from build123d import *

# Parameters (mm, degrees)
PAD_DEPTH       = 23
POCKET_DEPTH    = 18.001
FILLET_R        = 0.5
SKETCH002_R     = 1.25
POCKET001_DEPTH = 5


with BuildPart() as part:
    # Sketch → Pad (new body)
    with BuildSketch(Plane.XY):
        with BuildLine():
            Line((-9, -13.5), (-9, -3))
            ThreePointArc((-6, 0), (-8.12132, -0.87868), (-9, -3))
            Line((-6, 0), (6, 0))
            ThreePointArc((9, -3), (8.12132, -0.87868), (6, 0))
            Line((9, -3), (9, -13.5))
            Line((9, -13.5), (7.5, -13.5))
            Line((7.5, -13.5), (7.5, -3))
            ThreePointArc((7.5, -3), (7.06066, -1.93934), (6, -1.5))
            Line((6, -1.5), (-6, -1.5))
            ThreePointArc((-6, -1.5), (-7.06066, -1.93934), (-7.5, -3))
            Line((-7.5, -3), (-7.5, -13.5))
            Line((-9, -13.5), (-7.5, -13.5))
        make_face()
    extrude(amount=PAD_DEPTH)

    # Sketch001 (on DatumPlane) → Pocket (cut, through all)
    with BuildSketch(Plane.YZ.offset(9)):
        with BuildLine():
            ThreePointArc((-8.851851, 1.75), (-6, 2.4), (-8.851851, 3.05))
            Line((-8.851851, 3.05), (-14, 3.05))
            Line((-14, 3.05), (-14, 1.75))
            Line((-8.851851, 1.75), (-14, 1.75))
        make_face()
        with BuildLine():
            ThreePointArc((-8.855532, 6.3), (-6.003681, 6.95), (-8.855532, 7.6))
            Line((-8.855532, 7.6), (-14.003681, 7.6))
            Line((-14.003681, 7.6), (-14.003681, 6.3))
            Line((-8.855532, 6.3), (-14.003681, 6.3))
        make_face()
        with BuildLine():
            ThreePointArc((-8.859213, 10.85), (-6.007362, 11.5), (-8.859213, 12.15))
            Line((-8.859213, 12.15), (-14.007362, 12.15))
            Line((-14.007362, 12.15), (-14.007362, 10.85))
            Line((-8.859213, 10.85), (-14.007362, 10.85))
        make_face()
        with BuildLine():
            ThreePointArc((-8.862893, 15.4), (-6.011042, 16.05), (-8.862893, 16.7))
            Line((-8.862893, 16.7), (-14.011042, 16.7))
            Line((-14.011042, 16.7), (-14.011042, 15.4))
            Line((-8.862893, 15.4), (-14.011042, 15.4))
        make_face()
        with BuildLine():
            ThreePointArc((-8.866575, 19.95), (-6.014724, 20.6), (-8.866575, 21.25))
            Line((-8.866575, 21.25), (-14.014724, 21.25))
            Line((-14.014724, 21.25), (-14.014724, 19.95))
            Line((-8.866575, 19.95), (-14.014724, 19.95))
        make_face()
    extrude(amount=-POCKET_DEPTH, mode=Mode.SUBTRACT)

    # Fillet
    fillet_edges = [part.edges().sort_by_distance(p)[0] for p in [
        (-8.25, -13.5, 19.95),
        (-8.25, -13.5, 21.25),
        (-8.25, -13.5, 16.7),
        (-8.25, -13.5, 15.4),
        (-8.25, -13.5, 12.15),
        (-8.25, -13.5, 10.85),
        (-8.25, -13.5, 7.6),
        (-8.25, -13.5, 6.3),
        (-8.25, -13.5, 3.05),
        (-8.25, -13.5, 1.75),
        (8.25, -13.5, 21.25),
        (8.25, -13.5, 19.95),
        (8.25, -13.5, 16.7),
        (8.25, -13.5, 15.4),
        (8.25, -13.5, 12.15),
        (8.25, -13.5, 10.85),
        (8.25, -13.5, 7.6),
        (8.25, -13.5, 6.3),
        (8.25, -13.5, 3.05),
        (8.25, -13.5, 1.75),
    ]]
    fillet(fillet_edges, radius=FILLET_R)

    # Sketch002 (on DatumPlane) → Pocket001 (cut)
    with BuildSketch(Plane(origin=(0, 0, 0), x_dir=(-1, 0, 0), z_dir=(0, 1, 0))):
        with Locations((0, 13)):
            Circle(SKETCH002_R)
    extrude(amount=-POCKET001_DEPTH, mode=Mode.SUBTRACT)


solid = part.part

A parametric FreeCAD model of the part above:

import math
import FreeCAD as App
import Part
import Sketcher

V = App.Vector
Q = App.Units.Quantity


def edges_at(feature, points):
    """Names of the edges that pass closest to the given points."""
    edges = feature.Shape.Edges
    near = lambda p: min(range(len(edges)), key=lambda i: edges[i].distToShape(Part.Vertex(*p))[0])
    return sorted({f"Edge{near(p) + 1}" for p in points})

doc = App.newDocument("Part")
body = doc.addObject("PartDesign::Body", "Body")

# Sketch on XY plane
sketch1 = body.newObject("Sketcher::SketchObject", "Sketch")
sketch1.AttachmentSupport = (doc.getObject("XY_Plane"), [""])
sketch1.MapMode = "FlatFace"
sketch1.addGeometry(Part.LineSegment(V(-9, -3, 0), V(-9, -13.5, 0)), False)
sketch1.addGeometry(Part.LineSegment(V(-9, -13.5, 0), V(-7.5, -13.5, 0)), False)
sketch1.addGeometry(Part.LineSegment(V(-7.5, -13.5, 0), V(-7.5, -3, 0)), False)
sketch1.addGeometry(Part.ArcOfCircle(Part.Circle(V(-6, -3, 0), V(0, 0, 1), 1.5), math.radians(90), math.radians(180)), False)
sketch1.addGeometry(Part.LineSegment(V(-6, -1.5, 0), V(6, -1.5, 0)), False)
sketch1.addGeometry(Part.ArcOfCircle(Part.Circle(V(6, -3, 0), V(0, 0, 1), 1.5), math.radians(0), math.radians(90)), False)
sketch1.addGeometry(Part.LineSegment(V(7.5, -3, 0), V(7.5, -13.5, 0)), False)
sketch1.addGeometry(Part.LineSegment(V(7.5, -13.5, 0), V(9, -13.5, 0)), False)
sketch1.addGeometry(Part.LineSegment(V(9, -13.5, 0), V(9, -3, 0)), False)
sketch1.addGeometry(Part.ArcOfCircle(Part.Circle(V(6, -3, 0), V(0, 0, 1), 3), math.radians(0), math.radians(90)), False)
sketch1.addGeometry(Part.LineSegment(V(6, 0, 0), V(-6, 0, 0)), False)
sketch1.addGeometry(Part.ArcOfCircle(Part.Circle(V(-6, -3, 0), V(0, 0, 1), 3), math.radians(90), math.radians(180)), False)
sketch1.addConstraint(Sketcher.Constraint("Coincident", 0, 2, 1, 1))
sketch1.addConstraint(Sketcher.Constraint("Coincident", 1, 2, 2, 1))
sketch1.addConstraint(Sketcher.Constraint("Tangent", 2, 2, 3, 2))
sketch1.addConstraint(Sketcher.Constraint("Tangent", 3, 1, 4, 1))
sketch1.addConstraint(Sketcher.Constraint("Tangent", 4, 2, 5, 2))
sketch1.addConstraint(Sketcher.Constraint("Tangent", 5, 1, 6, 1))
sketch1.addConstraint(Sketcher.Constraint("Coincident", 6, 2, 7, 1))
sketch1.addConstraint(Sketcher.Constraint("Coincident", 7, 2, 8, 1))
sketch1.addConstraint(Sketcher.Constraint("Tangent", 8, 2, 9, 1))
sketch1.addConstraint(Sketcher.Constraint("Tangent", 9, 2, 10, 1))
sketch1.addConstraint(Sketcher.Constraint("Tangent", 10, 2, 11, 1))
sketch1.addConstraint(Sketcher.Constraint("Tangent", 11, 2, 0, 1))
sketch1.addConstraint(Sketcher.Constraint("Vertical", 0))
sketch1.addConstraint(Sketcher.Constraint("Horizontal", 1))
sketch1.addConstraint(Sketcher.Constraint("Vertical", 2))
sketch1.addConstraint(Sketcher.Constraint("Horizontal", 4))
sketch1.addConstraint(Sketcher.Constraint("Vertical", 6))
sketch1.addConstraint(Sketcher.Constraint("Horizontal", 7))
sketch1.addConstraint(Sketcher.Constraint("Vertical", 8))
sketch1.addConstraint(Sketcher.Constraint("Horizontal", 10))
sketch1.addConstraint(Sketcher.Constraint("Coincident", 9, 3, 5, 3))
sketch1.addConstraint(Sketcher.Constraint("Coincident", 11, 3, 3, 3))
sketch1.addConstraint(Sketcher.Constraint("Equal", 3, 5))
sketch1.addConstraint(Sketcher.Constraint("Symmetric", 9, 2, 10, 2, -1, 1))
sketch1.addConstraint(Sketcher.Constraint("Horizontal", 1, 2, 6, 2))
sketch1.addConstraint(Sketcher.Constraint("Radius", 9, Q("3.000001 mm")))
sketch1.addConstraint(Sketcher.Constraint("Radius", 3, Q("1.500001 mm")))
sketch1.addConstraint(Sketcher.Constraint("DistanceX", 4, 1, 4, 2, Q("12 mm")))
sketch1.addConstraint(Sketcher.Constraint("DistanceY", 0, 2, 0, 1, Q("10.5 mm")))
pad1 = body.newObject("PartDesign::Pad", "Pad")
pad1.Profile = sketch1
pad1.Length = 23

# Sketch on YZ plane
sketch2 = body.newObject("Sketcher::SketchObject", "Sketch001")
sketch2.AttachmentSupport = (doc.getObject("YZ_Plane"), [""])
sketch2.MapMode = "FlatFace"
sketch2.AttachmentOffset = App.Placement(V(0, 0, 9), App.Rotation())
sketch2.addGeometry(Part.ArcOfCircle(Part.Circle(V(-7.5, 2.4, 0), V(0, 0, 1), 1.5), math.radians(-154), math.radians(154)), False)
sketch2.addGeometry(Part.LineSegment(V(-8.9, 3, 0), V(-14, 3, 0)), False)
sketch2.addGeometry(Part.LineSegment(V(-14, 3, 0), V(-14, 1.8, 0)), False)
sketch2.addGeometry(Part.LineSegment(V(-14, 1.8, 0), V(-8.9, 1.8, 0)), False)
sketch2.addGeometry(Part.ArcOfCircle(Part.Circle(V(-7.5, 7, 0), V(0, 0, 1), 1.5), math.radians(-154), math.radians(154)), False)
sketch2.addGeometry(Part.LineSegment(V(-8.9, 7.6, 0), V(-14, 7.6, 0)), False)
sketch2.addGeometry(Part.LineSegment(V(-14, 7.6, 0), V(-14, 6.3, 0)), False)
sketch2.addGeometry(Part.LineSegment(V(-14, 6.3, 0), V(-8.9, 6.3, 0)), False)
sketch2.addGeometry(Part.ArcOfCircle(Part.Circle(V(-7.5, 11.5, 0), V(0, 0, 1), 1.5), math.radians(-154), math.radians(154)), False)
sketch2.addGeometry(Part.LineSegment(V(-8.9, 12.2, 0), V(-14, 12.2, 0)), False)
sketch2.addGeometry(Part.LineSegment(V(-14, 12.2, 0), V(-14, 10.8, 0)), False)
sketch2.addGeometry(Part.LineSegment(V(-14, 10.8, 0), V(-8.9, 10.8, 0)), False)
sketch2.addGeometry(Part.ArcOfCircle(Part.Circle(V(-7.5, 16.1, 0), V(0, 0, 1), 1.5), math.radians(-154), math.radians(154)), False)
sketch2.addGeometry(Part.LineSegment(V(-8.9, 16.7, 0), V(-14, 16.7, 0)), False)
sketch2.addGeometry(Part.LineSegment(V(-14, 16.7, 0), V(-14, 15.4, 0)), False)
sketch2.addGeometry(Part.LineSegment(V(-14, 15.4, 0), V(-8.9, 15.4, 0)), False)
sketch2.addGeometry(Part.ArcOfCircle(Part.Circle(V(-7.5, 20.6, 0), V(0, 0, 1), 1.5), math.radians(-154), math.radians(154)), False)
sketch2.addGeometry(Part.LineSegment(V(-8.9, 21.2, 0), V(-14, 21.2, 0)), False)
sketch2.addGeometry(Part.LineSegment(V(-14, 21.2, 0), V(-14, 19.9, 0)), False)
sketch2.addGeometry(Part.LineSegment(V(-14, 19.9, 0), V(-8.9, 19.9, 0)), False)
sketch2.addConstraint(Sketcher.Constraint("Coincident", 0, 2, 1, 1))
sketch2.addConstraint(Sketcher.Constraint("Coincident", 1, 2, 2, 1))
sketch2.addConstraint(Sketcher.Constraint("Coincident", 2, 2, 3, 1))
sketch2.addConstraint(Sketcher.Constraint("Coincident", 3, 2, 0, 1))
sketch2.addConstraint(Sketcher.Constraint("Coincident", 4, 2, 5, 1))
sketch2.addConstraint(Sketcher.Constraint("Coincident", 5, 2, 6, 1))
sketch2.addConstraint(Sketcher.Constraint("Coincident", 6, 2, 7, 1))
sketch2.addConstraint(Sketcher.Constraint("Coincident", 7, 2, 4, 1))
sketch2.addConstraint(Sketcher.Constraint("Coincident", 8, 2, 9, 1))
sketch2.addConstraint(Sketcher.Constraint("Coincident", 9, 2, 10, 1))
sketch2.addConstraint(Sketcher.Constraint("Coincident", 10, 2, 11, 1))
sketch2.addConstraint(Sketcher.Constraint("Coincident", 11, 2, 8, 1))
sketch2.addConstraint(Sketcher.Constraint("Coincident", 12, 2, 13, 1))
sketch2.addConstraint(Sketcher.Constraint("Coincident", 13, 2, 14, 1))
sketch2.addConstraint(Sketcher.Constraint("Coincident", 14, 2, 15, 1))
sketch2.addConstraint(Sketcher.Constraint("Coincident", 15, 2, 12, 1))
sketch2.addConstraint(Sketcher.Constraint("Coincident", 16, 2, 17, 1))
sketch2.addConstraint(Sketcher.Constraint("Coincident", 17, 2, 18, 1))
sketch2.addConstraint(Sketcher.Constraint("Coincident", 18, 2, 19, 1))
sketch2.addConstraint(Sketcher.Constraint("Coincident", 19, 2, 16, 1))
sketch2.addConstraint(Sketcher.Constraint("Horizontal", 1))
sketch2.addConstraint(Sketcher.Constraint("Vertical", 2))
sketch2.addConstraint(Sketcher.Constraint("Horizontal", 3))
sketch2.addConstraint(Sketcher.Constraint("Horizontal", 5))
sketch2.addConstraint(Sketcher.Constraint("Vertical", 6))
sketch2.addConstraint(Sketcher.Constraint("Horizontal", 7))
sketch2.addConstraint(Sketcher.Constraint("Horizontal", 9))
sketch2.addConstraint(Sketcher.Constraint("Vertical", 10))
sketch2.addConstraint(Sketcher.Constraint("Horizontal", 11))
sketch2.addConstraint(Sketcher.Constraint("Horizontal", 13))
sketch2.addConstraint(Sketcher.Constraint("Vertical", 14))
sketch2.addConstraint(Sketcher.Constraint("Horizontal", 15))
sketch2.addConstraint(Sketcher.Constraint("Horizontal", 17))
sketch2.addConstraint(Sketcher.Constraint("Vertical", 18))
sketch2.addConstraint(Sketcher.Constraint("Horizontal", 19))
sketch2.addConstraint(Sketcher.Constraint("Equal", 0, 4))
sketch2.addConstraint(Sketcher.Constraint("Equal", 4, 8))
sketch2.addConstraint(Sketcher.Constraint("Equal", 8, 12))
sketch2.addConstraint(Sketcher.Constraint("Equal", 12, 16))
sketch2.addConstraint(Sketcher.Constraint("Vertical", 0, 2, 3, 2))
sketch2.addConstraint(Sketcher.Constraint("Vertical", 4, 2, 7, 2))
sketch2.addConstraint(Sketcher.Constraint("Vertical", 8, 2, 11, 2))
sketch2.addConstraint(Sketcher.Constraint("Vertical", 12, 2, 15, 2))
sketch2.addConstraint(Sketcher.Constraint("Vertical", 16, 2, 19, 2))
sketch2.addConstraint(Sketcher.Constraint("Equal", 3, 5))
sketch2.addConstraint(Sketcher.Constraint("Equal", 7, 9))
sketch2.addConstraint(Sketcher.Constraint("Equal", 11, 13))
sketch2.addConstraint(Sketcher.Constraint("Equal", 15, 17))
sketch2.addConstraint(Sketcher.Constraint("Equal", 2, 6))
sketch2.addConstraint(Sketcher.Constraint("Equal", 6, 10))
sketch2.addConstraint(Sketcher.Constraint("Equal", 10, 14))
sketch2.addConstraint(Sketcher.Constraint("Equal", 14, 18))
sketch2.addConstraint(Sketcher.Constraint("Radius", 0, Q("1.5 mm")))
sketch2.addConstraint(Sketcher.Constraint("DistanceY", 2, 2, 2, 1, Q("1.3 mm")))
sketch2.addConstraint(Sketcher.Constraint("DistanceX", 1, 2, -1, 1, Q("14 mm")))
sketch2.addConstraint(Sketcher.Constraint("DistanceY", 0, 2, 12, 3, Q("13 mm")))
sketch2.addConstraint(Sketcher.Constraint("DistanceX", 0, 3, -1, 1, Q("7.5 mm")))
sketch2.addConstraint(Sketcher.Constraint("DistanceY", -1, 1, 0, 3, Q("2.4 mm")))
sketch2.addConstraint(Sketcher.Constraint("DistanceY", -1, 1, 8, 3, Q("11.5 mm")))
sketch2.addConstraint(Sketcher.Constraint("DistanceY", -1, 1, 16, 3, Q("20.6 mm")))
sketch2.addConstraint(Sketcher.Constraint("DistanceY", -1, 1, 4, 2, Q("7.6 mm")))
sketch2.addConstraint(Sketcher.Constraint("DistanceX", 4, 3, -1, 1, Q("7.503681 mm")))
sketch2.addConstraint(Sketcher.Constraint("DistanceX", 8, 3, 4, 3, Q("0.003681 mm")))
sketch2.addConstraint(Sketcher.Constraint("DistanceX", 12, 3, 8, 3, Q("0.00368 mm")))
sketch2.addConstraint(Sketcher.Constraint("DistanceX", 16, 3, 12, 3, Q("0.003682 mm")))
pocket1 = body.newObject("PartDesign::Pocket", "Pocket")
pocket1.Profile = sketch2
pocket1.Type = "ThroughAll"
doc.recompute()

fillet = body.newObject("PartDesign::Fillet", "Fillet")
fillet.Base = (pocket1, edges_at(pocket1, [
    (-8.25, -13.5, 19.95),
    (-8.25, -13.5, 21.25),
    (-8.25, -13.5, 16.7),
    (-8.25, -13.5, 15.4),
    (-8.25, -13.5, 12.15),
    (-8.25, -13.5, 10.85),
    (-8.25, -13.5, 7.6),
    (-8.25, -13.5, 6.3),
    (-8.25, -13.5, 3.05),
    (-8.25, -13.5, 1.75),
    (8.25, -13.5, 21.25),
    (8.25, -13.5, 19.95),
    (8.25, -13.5, 16.7),
    (8.25, -13.5, 15.4),
    (8.25, -13.5, 12.15),
    (8.25, -13.5, 10.85),
    (8.25, -13.5, 7.6),
    (8.25, -13.5, 6.3),
    (8.25, -13.5, 3.05),
    (8.25, -13.5, 1.75),
]))
fillet.Radius = 0.5

# Sketch on XZ plane
sketch3 = body.newObject("Sketcher::SketchObject", "Sketch002")
sketch3.AttachmentSupport = (doc.getObject("XZ_Plane"), [""])
sketch3.MapMode = "FlatFace"
sketch3.addGeometry(Part.Circle(V(0, 13, 0), V(0, 0, 1), 1.2), False)
sketch3.addConstraint(Sketcher.Constraint("PointOnObject", 0, 3, -2))
sketch3.addConstraint(Sketcher.Constraint("Diameter", 0, Q("2.5 mm")))
sketch3.addConstraint(Sketcher.Constraint("DistanceY", -1, 1, 0, 3, Q("13 mm")))
pocket2 = body.newObject("PartDesign::Pocket", "Pocket001")
pocket2.Profile = sketch3
pocket2.Length = 5
pocket2.Reversed = True

doc.recompute()
